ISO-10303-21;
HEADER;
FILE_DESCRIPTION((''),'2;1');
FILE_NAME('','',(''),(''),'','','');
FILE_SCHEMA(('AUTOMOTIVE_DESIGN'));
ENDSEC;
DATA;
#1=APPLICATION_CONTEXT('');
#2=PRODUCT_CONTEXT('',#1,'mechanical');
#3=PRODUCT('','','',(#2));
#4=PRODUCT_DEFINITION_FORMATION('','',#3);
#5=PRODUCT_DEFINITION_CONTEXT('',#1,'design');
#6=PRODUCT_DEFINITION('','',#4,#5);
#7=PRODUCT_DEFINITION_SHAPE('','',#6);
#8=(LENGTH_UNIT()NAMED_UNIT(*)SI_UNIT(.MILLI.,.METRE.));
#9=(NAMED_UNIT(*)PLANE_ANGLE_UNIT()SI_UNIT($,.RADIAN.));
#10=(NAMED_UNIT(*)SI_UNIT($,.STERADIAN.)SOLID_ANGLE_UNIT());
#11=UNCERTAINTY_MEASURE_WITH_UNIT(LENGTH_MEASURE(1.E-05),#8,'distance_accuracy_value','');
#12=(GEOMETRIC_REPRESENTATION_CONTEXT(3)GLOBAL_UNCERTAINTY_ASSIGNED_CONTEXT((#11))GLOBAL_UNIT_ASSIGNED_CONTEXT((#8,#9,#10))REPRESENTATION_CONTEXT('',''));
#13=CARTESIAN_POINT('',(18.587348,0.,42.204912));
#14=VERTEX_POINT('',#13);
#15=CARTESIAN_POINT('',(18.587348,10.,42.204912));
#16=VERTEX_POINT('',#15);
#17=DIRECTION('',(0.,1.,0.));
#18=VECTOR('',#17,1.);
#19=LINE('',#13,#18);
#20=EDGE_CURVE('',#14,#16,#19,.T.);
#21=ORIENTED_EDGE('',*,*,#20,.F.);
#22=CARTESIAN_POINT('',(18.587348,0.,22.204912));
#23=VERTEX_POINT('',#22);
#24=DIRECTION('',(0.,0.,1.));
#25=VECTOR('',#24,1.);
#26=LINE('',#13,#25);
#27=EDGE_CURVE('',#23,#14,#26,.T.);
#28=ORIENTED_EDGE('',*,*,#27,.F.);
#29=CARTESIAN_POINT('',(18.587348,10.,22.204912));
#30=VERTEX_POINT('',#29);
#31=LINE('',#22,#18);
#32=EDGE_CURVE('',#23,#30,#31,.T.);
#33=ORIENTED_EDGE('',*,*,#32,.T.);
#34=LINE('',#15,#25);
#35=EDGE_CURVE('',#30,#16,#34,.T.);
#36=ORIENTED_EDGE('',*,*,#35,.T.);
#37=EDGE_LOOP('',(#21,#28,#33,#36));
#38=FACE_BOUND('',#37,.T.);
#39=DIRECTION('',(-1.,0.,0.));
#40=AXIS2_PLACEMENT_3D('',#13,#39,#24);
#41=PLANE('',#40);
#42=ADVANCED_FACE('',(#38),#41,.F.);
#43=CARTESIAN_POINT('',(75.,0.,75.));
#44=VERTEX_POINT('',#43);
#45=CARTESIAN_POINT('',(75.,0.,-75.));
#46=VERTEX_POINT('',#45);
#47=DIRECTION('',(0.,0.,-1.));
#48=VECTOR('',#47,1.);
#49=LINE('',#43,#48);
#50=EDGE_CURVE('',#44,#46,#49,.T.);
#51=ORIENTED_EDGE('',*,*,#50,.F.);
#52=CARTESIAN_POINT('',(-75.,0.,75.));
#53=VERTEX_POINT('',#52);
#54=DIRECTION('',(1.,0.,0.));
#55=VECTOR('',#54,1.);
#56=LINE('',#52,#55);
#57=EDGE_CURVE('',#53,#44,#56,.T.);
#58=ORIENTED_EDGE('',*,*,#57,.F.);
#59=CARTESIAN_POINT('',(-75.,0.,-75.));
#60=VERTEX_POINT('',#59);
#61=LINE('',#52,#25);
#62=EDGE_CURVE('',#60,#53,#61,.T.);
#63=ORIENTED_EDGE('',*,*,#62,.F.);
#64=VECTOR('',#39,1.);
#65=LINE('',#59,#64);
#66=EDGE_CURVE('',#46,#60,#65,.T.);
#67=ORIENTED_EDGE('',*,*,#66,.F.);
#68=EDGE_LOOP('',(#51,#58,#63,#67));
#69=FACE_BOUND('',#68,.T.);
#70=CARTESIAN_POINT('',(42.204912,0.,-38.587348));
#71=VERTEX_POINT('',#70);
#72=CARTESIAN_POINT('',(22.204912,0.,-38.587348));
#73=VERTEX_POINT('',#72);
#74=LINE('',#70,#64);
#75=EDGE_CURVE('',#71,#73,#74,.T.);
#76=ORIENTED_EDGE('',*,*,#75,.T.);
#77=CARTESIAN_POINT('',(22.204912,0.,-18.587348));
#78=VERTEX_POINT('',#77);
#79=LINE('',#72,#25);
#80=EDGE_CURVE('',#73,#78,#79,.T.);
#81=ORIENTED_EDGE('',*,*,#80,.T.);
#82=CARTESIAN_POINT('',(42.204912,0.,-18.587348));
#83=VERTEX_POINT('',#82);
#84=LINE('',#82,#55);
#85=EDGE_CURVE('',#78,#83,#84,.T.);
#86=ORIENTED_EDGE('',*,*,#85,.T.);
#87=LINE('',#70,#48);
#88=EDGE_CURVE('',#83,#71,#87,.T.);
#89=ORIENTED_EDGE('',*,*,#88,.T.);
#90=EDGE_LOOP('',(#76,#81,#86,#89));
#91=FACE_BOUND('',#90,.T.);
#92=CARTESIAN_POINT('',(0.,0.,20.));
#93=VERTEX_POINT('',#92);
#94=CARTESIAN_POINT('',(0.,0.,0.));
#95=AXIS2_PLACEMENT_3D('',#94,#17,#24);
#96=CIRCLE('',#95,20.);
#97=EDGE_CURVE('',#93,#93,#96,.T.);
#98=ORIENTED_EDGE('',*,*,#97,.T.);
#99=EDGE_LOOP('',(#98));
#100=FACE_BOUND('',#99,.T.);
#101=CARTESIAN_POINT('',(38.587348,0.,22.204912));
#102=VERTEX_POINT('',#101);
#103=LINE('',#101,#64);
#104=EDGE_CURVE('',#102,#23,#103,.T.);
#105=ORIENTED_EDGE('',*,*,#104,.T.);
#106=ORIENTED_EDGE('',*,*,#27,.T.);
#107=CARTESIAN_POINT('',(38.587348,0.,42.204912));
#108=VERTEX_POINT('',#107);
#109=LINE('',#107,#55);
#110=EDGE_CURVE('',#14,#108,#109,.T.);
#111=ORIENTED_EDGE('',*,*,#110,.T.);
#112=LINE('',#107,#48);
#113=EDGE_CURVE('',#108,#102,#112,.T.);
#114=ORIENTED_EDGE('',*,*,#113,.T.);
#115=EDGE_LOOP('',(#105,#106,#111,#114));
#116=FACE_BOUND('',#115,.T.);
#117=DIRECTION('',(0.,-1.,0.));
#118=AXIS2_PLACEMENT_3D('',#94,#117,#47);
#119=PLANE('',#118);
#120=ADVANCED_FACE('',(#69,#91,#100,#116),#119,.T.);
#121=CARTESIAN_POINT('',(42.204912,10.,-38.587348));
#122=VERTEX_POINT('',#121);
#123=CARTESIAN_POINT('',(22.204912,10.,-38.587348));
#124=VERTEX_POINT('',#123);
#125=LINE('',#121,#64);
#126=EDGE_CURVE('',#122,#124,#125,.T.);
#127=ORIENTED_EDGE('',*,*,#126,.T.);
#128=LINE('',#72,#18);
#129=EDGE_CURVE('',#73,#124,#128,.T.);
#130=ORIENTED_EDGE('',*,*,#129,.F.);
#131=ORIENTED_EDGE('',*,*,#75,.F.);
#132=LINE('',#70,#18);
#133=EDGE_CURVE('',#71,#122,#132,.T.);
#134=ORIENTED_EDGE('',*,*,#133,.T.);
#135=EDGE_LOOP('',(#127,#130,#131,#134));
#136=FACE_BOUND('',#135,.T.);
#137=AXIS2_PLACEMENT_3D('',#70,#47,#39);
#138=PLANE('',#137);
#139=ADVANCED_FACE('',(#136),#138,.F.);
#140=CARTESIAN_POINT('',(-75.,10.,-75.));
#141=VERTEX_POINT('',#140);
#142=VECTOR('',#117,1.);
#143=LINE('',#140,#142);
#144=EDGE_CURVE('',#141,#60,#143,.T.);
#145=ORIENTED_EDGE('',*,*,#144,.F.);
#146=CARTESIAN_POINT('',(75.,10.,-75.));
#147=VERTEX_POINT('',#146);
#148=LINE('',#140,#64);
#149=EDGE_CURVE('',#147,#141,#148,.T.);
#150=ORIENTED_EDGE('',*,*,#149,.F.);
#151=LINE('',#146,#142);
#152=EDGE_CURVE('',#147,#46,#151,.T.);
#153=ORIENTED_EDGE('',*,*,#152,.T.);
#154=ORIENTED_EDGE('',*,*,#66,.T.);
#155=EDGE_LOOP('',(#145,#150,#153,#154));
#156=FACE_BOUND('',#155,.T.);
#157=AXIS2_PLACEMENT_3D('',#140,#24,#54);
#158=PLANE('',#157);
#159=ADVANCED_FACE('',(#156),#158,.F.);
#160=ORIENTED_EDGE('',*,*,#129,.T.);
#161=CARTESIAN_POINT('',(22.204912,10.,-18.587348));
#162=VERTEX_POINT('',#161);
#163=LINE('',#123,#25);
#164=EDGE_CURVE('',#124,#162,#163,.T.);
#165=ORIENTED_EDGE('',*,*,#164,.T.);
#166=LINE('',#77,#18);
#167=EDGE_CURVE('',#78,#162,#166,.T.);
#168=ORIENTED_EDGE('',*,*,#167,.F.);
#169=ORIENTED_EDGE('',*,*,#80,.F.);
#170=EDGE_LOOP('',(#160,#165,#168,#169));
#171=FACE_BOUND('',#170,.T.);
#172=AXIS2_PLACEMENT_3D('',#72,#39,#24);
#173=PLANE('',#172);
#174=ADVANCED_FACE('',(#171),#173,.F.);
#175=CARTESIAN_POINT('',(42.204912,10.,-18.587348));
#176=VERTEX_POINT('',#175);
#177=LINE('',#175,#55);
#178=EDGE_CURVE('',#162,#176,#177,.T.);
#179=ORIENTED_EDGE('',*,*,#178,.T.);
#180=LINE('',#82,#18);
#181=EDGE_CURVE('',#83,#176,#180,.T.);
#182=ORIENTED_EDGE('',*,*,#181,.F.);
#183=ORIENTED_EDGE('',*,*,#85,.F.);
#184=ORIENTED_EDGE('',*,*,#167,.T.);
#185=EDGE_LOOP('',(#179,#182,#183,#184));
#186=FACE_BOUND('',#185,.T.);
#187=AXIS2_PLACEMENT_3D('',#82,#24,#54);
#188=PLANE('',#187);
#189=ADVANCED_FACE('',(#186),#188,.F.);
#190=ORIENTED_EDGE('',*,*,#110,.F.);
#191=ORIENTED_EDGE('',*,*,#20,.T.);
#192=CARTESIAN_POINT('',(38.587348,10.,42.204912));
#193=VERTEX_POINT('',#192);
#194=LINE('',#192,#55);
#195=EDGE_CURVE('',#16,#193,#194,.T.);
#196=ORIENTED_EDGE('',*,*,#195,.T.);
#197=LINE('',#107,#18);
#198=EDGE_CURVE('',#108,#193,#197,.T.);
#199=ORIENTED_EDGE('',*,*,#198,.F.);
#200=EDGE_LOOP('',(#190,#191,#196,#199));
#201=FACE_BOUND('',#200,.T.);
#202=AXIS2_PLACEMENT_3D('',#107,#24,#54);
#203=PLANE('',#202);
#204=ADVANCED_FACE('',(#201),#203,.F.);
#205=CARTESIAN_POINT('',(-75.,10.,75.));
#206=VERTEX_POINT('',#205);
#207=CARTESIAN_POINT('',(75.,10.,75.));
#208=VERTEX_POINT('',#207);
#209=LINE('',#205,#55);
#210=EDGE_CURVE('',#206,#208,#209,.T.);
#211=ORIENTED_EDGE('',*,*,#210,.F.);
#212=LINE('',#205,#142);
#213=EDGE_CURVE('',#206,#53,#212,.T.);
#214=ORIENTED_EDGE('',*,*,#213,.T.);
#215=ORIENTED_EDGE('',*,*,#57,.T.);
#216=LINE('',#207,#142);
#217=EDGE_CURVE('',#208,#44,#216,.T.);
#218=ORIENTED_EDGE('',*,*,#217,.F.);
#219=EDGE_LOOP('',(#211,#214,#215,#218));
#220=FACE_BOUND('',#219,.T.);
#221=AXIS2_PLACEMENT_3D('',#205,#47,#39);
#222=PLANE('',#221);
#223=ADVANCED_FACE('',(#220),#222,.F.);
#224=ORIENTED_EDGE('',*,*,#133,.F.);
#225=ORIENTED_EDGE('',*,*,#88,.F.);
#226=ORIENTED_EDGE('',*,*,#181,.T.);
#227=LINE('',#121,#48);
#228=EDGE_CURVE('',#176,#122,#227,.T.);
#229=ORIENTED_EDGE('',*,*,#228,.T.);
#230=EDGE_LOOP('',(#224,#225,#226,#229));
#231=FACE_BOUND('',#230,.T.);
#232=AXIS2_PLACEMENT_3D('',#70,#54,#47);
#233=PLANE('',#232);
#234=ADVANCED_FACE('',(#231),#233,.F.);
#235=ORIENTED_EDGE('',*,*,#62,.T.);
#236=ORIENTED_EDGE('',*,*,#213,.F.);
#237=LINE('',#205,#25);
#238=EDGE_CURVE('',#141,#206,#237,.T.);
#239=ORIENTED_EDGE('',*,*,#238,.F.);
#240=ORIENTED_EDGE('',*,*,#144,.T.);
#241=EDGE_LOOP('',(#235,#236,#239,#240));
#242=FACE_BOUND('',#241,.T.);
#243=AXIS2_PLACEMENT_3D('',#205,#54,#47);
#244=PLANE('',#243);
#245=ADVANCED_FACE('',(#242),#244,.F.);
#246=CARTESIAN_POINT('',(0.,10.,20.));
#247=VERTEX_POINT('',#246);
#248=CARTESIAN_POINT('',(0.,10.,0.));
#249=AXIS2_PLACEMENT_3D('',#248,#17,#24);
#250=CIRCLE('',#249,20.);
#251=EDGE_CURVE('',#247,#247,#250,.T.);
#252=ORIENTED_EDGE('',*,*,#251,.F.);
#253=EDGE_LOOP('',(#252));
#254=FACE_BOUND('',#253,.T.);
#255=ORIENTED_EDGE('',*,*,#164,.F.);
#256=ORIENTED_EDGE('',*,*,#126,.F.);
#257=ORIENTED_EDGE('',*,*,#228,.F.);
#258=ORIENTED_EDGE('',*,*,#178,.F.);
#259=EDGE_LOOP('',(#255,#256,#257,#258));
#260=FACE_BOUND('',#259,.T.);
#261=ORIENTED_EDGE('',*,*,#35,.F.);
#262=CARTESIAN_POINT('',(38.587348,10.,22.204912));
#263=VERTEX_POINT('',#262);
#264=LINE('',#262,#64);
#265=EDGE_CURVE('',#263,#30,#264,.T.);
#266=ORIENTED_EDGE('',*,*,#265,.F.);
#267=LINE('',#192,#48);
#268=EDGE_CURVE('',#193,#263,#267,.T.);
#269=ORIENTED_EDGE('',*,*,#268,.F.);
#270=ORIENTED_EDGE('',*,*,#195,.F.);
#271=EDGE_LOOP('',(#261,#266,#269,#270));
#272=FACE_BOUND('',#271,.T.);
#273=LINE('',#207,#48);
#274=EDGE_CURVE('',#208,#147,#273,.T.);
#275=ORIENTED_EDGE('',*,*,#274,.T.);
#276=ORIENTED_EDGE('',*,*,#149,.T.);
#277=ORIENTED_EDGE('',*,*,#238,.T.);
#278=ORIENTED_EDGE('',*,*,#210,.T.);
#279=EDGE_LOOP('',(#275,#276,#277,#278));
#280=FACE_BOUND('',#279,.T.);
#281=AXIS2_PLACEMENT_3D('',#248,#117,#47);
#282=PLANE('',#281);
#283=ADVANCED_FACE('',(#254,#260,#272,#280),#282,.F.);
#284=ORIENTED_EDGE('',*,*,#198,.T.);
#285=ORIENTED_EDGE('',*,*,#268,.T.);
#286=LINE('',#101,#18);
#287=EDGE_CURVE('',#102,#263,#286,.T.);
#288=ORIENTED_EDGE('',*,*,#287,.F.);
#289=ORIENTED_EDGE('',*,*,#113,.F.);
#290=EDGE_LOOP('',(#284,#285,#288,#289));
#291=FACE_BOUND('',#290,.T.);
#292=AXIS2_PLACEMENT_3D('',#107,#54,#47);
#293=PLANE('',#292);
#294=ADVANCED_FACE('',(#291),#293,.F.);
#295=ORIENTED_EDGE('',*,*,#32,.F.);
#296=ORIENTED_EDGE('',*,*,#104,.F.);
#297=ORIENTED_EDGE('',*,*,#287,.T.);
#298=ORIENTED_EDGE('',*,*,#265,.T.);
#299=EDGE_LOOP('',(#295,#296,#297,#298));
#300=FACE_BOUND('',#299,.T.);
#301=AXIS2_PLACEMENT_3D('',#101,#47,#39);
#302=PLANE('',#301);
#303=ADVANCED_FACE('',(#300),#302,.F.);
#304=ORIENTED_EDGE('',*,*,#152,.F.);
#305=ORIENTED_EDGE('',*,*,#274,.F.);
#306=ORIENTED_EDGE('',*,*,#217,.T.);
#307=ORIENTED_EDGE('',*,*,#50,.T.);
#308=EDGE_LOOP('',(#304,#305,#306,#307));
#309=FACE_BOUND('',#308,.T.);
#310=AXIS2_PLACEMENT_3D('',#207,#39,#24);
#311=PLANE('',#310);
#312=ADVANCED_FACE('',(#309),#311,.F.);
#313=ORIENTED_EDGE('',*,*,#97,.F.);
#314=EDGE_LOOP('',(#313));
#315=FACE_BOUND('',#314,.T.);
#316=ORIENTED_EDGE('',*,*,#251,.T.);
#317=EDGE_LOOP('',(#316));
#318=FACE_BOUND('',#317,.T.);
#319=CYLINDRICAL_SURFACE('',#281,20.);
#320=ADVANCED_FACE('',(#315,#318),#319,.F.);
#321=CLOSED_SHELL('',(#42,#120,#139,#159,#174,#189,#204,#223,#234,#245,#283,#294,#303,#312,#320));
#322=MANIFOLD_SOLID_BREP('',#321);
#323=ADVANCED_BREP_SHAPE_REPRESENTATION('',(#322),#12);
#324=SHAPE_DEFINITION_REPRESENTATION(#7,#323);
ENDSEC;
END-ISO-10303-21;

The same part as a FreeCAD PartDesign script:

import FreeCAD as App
import Part
import Sketcher


def add_polygon(sketch, points):
    """Adds a closed chain of lines whose ends are joined by coincident constraints."""
    first, n = sketch.GeometryCount, len(points)
    for a, b in zip(points, points[1:] + points[:1]):
        sketch.addGeometry(Part.LineSegment(App.Vector(*a, 0), App.Vector(*b, 0)), False)
    for i in range(n):
        sketch.addConstraint(Sketcher.Constraint("Coincident", first + i, 2, first + (i + 1) % n, 1))

doc = App.newDocument("Part")
body = doc.addObject("PartDesign::Body", "Body")

sketch1 = body.newObject("Sketcher::SketchObject", "Sketch")
sketch1.AttachmentSupport = (doc.getObject("XZ_Plane"), [""])
sketch1.MapMode = "FlatFace"
add_polygon(sketch1, [(-75, -75), (-75, 75), (75, 75), (75, -75)])
sketch1.addGeometry(Part.Circle(App.Vector(0, 0, 0), App.Vector(0, 0, 1), 20), False)
sketch1.addConstraint([
    Sketcher.Constraint("Vertical", 0),
    Sketcher.Constraint("Horizontal", 1),
    Sketcher.Constraint("Vertical", 2),
    Sketcher.Constraint("Horizontal", 3),
    Sketcher.Constraint("Coincident", 4, 3, -1, 1),
    Sketcher.Constraint("Symmetric", 0, 2, 2, 2, -1, 1),
    Sketcher.Constraint("Equal", 3, 0),
    Sketcher.Constraint("Diameter", 4, 40.0),
    Sketcher.Constraint("DistanceX", 1, 1, 1, 2, 150.0),
])
pad1 = body.newObject("PartDesign::Pad", "Pad")
pad1.Profile = sketch1
pad1.Length = 10
pad1.Reversed = True

sketch2 = body.newObject("Sketcher::SketchObject", "Sketch001")
sketch2.AttachmentSupport = (doc.getObject("XZ_Plane"), [""])
sketch2.MapMode = "FlatFace"
sketch2.AttachmentOffset = App.Placement(App.Vector(0, 0, -10), App.Rotation())
add_polygon(sketch2, [(22.204912, -38.587348), (22.204912, -18.587348), (42.204912, -18.587348), (42.204912, -38.587348)])
add_polygon(sketch2, [(18.587348, 22.204912), (18.587348, 42.204912), (38.587348, 42.204912), (38.587348, 22.204912)])
sketch2.addConstraint([
    Sketcher.Constraint("Vertical", 0),
    Sketcher.Constraint("Horizontal", 1),
    Sketcher.Constraint("Vertical", 2),
    Sketcher.Constraint("Horizontal", 3),
    Sketcher.Constraint("Vertical", 4),
    Sketcher.Constraint("Horizontal", 5),
    Sketcher.Constraint("Vertical", 6),
    Sketcher.Constraint("Horizontal", 7),
    Sketcher.Constraint("Equal", 3, 5),
    Sketcher.Constraint("Equal", 7, 0),
    Sketcher.Constraint("Equal", 2, 4),
    Sketcher.Constraint("DistanceX", 1, 1, 1, 2, 20.0),
    Sketcher.Constraint("DistanceX", -1, 1, 0, 2, 22.204912),
    Sketcher.Constraint("DistanceY", -1, 1, 4, 2, 42.204912),
    Sketcher.Constraint("DistanceY", 0, 2, 4, 2, 60.792259),
    Sketcher.Constraint("DistanceX", -1, 1, 4, 2, 18.587348),
])
pocket1 = body.newObject("PartDesign::Pocket", "Pocket")
pocket1.Profile = sketch2
pocket1.Length = 10
pocket1.Reversed = True

doc.recompute()
